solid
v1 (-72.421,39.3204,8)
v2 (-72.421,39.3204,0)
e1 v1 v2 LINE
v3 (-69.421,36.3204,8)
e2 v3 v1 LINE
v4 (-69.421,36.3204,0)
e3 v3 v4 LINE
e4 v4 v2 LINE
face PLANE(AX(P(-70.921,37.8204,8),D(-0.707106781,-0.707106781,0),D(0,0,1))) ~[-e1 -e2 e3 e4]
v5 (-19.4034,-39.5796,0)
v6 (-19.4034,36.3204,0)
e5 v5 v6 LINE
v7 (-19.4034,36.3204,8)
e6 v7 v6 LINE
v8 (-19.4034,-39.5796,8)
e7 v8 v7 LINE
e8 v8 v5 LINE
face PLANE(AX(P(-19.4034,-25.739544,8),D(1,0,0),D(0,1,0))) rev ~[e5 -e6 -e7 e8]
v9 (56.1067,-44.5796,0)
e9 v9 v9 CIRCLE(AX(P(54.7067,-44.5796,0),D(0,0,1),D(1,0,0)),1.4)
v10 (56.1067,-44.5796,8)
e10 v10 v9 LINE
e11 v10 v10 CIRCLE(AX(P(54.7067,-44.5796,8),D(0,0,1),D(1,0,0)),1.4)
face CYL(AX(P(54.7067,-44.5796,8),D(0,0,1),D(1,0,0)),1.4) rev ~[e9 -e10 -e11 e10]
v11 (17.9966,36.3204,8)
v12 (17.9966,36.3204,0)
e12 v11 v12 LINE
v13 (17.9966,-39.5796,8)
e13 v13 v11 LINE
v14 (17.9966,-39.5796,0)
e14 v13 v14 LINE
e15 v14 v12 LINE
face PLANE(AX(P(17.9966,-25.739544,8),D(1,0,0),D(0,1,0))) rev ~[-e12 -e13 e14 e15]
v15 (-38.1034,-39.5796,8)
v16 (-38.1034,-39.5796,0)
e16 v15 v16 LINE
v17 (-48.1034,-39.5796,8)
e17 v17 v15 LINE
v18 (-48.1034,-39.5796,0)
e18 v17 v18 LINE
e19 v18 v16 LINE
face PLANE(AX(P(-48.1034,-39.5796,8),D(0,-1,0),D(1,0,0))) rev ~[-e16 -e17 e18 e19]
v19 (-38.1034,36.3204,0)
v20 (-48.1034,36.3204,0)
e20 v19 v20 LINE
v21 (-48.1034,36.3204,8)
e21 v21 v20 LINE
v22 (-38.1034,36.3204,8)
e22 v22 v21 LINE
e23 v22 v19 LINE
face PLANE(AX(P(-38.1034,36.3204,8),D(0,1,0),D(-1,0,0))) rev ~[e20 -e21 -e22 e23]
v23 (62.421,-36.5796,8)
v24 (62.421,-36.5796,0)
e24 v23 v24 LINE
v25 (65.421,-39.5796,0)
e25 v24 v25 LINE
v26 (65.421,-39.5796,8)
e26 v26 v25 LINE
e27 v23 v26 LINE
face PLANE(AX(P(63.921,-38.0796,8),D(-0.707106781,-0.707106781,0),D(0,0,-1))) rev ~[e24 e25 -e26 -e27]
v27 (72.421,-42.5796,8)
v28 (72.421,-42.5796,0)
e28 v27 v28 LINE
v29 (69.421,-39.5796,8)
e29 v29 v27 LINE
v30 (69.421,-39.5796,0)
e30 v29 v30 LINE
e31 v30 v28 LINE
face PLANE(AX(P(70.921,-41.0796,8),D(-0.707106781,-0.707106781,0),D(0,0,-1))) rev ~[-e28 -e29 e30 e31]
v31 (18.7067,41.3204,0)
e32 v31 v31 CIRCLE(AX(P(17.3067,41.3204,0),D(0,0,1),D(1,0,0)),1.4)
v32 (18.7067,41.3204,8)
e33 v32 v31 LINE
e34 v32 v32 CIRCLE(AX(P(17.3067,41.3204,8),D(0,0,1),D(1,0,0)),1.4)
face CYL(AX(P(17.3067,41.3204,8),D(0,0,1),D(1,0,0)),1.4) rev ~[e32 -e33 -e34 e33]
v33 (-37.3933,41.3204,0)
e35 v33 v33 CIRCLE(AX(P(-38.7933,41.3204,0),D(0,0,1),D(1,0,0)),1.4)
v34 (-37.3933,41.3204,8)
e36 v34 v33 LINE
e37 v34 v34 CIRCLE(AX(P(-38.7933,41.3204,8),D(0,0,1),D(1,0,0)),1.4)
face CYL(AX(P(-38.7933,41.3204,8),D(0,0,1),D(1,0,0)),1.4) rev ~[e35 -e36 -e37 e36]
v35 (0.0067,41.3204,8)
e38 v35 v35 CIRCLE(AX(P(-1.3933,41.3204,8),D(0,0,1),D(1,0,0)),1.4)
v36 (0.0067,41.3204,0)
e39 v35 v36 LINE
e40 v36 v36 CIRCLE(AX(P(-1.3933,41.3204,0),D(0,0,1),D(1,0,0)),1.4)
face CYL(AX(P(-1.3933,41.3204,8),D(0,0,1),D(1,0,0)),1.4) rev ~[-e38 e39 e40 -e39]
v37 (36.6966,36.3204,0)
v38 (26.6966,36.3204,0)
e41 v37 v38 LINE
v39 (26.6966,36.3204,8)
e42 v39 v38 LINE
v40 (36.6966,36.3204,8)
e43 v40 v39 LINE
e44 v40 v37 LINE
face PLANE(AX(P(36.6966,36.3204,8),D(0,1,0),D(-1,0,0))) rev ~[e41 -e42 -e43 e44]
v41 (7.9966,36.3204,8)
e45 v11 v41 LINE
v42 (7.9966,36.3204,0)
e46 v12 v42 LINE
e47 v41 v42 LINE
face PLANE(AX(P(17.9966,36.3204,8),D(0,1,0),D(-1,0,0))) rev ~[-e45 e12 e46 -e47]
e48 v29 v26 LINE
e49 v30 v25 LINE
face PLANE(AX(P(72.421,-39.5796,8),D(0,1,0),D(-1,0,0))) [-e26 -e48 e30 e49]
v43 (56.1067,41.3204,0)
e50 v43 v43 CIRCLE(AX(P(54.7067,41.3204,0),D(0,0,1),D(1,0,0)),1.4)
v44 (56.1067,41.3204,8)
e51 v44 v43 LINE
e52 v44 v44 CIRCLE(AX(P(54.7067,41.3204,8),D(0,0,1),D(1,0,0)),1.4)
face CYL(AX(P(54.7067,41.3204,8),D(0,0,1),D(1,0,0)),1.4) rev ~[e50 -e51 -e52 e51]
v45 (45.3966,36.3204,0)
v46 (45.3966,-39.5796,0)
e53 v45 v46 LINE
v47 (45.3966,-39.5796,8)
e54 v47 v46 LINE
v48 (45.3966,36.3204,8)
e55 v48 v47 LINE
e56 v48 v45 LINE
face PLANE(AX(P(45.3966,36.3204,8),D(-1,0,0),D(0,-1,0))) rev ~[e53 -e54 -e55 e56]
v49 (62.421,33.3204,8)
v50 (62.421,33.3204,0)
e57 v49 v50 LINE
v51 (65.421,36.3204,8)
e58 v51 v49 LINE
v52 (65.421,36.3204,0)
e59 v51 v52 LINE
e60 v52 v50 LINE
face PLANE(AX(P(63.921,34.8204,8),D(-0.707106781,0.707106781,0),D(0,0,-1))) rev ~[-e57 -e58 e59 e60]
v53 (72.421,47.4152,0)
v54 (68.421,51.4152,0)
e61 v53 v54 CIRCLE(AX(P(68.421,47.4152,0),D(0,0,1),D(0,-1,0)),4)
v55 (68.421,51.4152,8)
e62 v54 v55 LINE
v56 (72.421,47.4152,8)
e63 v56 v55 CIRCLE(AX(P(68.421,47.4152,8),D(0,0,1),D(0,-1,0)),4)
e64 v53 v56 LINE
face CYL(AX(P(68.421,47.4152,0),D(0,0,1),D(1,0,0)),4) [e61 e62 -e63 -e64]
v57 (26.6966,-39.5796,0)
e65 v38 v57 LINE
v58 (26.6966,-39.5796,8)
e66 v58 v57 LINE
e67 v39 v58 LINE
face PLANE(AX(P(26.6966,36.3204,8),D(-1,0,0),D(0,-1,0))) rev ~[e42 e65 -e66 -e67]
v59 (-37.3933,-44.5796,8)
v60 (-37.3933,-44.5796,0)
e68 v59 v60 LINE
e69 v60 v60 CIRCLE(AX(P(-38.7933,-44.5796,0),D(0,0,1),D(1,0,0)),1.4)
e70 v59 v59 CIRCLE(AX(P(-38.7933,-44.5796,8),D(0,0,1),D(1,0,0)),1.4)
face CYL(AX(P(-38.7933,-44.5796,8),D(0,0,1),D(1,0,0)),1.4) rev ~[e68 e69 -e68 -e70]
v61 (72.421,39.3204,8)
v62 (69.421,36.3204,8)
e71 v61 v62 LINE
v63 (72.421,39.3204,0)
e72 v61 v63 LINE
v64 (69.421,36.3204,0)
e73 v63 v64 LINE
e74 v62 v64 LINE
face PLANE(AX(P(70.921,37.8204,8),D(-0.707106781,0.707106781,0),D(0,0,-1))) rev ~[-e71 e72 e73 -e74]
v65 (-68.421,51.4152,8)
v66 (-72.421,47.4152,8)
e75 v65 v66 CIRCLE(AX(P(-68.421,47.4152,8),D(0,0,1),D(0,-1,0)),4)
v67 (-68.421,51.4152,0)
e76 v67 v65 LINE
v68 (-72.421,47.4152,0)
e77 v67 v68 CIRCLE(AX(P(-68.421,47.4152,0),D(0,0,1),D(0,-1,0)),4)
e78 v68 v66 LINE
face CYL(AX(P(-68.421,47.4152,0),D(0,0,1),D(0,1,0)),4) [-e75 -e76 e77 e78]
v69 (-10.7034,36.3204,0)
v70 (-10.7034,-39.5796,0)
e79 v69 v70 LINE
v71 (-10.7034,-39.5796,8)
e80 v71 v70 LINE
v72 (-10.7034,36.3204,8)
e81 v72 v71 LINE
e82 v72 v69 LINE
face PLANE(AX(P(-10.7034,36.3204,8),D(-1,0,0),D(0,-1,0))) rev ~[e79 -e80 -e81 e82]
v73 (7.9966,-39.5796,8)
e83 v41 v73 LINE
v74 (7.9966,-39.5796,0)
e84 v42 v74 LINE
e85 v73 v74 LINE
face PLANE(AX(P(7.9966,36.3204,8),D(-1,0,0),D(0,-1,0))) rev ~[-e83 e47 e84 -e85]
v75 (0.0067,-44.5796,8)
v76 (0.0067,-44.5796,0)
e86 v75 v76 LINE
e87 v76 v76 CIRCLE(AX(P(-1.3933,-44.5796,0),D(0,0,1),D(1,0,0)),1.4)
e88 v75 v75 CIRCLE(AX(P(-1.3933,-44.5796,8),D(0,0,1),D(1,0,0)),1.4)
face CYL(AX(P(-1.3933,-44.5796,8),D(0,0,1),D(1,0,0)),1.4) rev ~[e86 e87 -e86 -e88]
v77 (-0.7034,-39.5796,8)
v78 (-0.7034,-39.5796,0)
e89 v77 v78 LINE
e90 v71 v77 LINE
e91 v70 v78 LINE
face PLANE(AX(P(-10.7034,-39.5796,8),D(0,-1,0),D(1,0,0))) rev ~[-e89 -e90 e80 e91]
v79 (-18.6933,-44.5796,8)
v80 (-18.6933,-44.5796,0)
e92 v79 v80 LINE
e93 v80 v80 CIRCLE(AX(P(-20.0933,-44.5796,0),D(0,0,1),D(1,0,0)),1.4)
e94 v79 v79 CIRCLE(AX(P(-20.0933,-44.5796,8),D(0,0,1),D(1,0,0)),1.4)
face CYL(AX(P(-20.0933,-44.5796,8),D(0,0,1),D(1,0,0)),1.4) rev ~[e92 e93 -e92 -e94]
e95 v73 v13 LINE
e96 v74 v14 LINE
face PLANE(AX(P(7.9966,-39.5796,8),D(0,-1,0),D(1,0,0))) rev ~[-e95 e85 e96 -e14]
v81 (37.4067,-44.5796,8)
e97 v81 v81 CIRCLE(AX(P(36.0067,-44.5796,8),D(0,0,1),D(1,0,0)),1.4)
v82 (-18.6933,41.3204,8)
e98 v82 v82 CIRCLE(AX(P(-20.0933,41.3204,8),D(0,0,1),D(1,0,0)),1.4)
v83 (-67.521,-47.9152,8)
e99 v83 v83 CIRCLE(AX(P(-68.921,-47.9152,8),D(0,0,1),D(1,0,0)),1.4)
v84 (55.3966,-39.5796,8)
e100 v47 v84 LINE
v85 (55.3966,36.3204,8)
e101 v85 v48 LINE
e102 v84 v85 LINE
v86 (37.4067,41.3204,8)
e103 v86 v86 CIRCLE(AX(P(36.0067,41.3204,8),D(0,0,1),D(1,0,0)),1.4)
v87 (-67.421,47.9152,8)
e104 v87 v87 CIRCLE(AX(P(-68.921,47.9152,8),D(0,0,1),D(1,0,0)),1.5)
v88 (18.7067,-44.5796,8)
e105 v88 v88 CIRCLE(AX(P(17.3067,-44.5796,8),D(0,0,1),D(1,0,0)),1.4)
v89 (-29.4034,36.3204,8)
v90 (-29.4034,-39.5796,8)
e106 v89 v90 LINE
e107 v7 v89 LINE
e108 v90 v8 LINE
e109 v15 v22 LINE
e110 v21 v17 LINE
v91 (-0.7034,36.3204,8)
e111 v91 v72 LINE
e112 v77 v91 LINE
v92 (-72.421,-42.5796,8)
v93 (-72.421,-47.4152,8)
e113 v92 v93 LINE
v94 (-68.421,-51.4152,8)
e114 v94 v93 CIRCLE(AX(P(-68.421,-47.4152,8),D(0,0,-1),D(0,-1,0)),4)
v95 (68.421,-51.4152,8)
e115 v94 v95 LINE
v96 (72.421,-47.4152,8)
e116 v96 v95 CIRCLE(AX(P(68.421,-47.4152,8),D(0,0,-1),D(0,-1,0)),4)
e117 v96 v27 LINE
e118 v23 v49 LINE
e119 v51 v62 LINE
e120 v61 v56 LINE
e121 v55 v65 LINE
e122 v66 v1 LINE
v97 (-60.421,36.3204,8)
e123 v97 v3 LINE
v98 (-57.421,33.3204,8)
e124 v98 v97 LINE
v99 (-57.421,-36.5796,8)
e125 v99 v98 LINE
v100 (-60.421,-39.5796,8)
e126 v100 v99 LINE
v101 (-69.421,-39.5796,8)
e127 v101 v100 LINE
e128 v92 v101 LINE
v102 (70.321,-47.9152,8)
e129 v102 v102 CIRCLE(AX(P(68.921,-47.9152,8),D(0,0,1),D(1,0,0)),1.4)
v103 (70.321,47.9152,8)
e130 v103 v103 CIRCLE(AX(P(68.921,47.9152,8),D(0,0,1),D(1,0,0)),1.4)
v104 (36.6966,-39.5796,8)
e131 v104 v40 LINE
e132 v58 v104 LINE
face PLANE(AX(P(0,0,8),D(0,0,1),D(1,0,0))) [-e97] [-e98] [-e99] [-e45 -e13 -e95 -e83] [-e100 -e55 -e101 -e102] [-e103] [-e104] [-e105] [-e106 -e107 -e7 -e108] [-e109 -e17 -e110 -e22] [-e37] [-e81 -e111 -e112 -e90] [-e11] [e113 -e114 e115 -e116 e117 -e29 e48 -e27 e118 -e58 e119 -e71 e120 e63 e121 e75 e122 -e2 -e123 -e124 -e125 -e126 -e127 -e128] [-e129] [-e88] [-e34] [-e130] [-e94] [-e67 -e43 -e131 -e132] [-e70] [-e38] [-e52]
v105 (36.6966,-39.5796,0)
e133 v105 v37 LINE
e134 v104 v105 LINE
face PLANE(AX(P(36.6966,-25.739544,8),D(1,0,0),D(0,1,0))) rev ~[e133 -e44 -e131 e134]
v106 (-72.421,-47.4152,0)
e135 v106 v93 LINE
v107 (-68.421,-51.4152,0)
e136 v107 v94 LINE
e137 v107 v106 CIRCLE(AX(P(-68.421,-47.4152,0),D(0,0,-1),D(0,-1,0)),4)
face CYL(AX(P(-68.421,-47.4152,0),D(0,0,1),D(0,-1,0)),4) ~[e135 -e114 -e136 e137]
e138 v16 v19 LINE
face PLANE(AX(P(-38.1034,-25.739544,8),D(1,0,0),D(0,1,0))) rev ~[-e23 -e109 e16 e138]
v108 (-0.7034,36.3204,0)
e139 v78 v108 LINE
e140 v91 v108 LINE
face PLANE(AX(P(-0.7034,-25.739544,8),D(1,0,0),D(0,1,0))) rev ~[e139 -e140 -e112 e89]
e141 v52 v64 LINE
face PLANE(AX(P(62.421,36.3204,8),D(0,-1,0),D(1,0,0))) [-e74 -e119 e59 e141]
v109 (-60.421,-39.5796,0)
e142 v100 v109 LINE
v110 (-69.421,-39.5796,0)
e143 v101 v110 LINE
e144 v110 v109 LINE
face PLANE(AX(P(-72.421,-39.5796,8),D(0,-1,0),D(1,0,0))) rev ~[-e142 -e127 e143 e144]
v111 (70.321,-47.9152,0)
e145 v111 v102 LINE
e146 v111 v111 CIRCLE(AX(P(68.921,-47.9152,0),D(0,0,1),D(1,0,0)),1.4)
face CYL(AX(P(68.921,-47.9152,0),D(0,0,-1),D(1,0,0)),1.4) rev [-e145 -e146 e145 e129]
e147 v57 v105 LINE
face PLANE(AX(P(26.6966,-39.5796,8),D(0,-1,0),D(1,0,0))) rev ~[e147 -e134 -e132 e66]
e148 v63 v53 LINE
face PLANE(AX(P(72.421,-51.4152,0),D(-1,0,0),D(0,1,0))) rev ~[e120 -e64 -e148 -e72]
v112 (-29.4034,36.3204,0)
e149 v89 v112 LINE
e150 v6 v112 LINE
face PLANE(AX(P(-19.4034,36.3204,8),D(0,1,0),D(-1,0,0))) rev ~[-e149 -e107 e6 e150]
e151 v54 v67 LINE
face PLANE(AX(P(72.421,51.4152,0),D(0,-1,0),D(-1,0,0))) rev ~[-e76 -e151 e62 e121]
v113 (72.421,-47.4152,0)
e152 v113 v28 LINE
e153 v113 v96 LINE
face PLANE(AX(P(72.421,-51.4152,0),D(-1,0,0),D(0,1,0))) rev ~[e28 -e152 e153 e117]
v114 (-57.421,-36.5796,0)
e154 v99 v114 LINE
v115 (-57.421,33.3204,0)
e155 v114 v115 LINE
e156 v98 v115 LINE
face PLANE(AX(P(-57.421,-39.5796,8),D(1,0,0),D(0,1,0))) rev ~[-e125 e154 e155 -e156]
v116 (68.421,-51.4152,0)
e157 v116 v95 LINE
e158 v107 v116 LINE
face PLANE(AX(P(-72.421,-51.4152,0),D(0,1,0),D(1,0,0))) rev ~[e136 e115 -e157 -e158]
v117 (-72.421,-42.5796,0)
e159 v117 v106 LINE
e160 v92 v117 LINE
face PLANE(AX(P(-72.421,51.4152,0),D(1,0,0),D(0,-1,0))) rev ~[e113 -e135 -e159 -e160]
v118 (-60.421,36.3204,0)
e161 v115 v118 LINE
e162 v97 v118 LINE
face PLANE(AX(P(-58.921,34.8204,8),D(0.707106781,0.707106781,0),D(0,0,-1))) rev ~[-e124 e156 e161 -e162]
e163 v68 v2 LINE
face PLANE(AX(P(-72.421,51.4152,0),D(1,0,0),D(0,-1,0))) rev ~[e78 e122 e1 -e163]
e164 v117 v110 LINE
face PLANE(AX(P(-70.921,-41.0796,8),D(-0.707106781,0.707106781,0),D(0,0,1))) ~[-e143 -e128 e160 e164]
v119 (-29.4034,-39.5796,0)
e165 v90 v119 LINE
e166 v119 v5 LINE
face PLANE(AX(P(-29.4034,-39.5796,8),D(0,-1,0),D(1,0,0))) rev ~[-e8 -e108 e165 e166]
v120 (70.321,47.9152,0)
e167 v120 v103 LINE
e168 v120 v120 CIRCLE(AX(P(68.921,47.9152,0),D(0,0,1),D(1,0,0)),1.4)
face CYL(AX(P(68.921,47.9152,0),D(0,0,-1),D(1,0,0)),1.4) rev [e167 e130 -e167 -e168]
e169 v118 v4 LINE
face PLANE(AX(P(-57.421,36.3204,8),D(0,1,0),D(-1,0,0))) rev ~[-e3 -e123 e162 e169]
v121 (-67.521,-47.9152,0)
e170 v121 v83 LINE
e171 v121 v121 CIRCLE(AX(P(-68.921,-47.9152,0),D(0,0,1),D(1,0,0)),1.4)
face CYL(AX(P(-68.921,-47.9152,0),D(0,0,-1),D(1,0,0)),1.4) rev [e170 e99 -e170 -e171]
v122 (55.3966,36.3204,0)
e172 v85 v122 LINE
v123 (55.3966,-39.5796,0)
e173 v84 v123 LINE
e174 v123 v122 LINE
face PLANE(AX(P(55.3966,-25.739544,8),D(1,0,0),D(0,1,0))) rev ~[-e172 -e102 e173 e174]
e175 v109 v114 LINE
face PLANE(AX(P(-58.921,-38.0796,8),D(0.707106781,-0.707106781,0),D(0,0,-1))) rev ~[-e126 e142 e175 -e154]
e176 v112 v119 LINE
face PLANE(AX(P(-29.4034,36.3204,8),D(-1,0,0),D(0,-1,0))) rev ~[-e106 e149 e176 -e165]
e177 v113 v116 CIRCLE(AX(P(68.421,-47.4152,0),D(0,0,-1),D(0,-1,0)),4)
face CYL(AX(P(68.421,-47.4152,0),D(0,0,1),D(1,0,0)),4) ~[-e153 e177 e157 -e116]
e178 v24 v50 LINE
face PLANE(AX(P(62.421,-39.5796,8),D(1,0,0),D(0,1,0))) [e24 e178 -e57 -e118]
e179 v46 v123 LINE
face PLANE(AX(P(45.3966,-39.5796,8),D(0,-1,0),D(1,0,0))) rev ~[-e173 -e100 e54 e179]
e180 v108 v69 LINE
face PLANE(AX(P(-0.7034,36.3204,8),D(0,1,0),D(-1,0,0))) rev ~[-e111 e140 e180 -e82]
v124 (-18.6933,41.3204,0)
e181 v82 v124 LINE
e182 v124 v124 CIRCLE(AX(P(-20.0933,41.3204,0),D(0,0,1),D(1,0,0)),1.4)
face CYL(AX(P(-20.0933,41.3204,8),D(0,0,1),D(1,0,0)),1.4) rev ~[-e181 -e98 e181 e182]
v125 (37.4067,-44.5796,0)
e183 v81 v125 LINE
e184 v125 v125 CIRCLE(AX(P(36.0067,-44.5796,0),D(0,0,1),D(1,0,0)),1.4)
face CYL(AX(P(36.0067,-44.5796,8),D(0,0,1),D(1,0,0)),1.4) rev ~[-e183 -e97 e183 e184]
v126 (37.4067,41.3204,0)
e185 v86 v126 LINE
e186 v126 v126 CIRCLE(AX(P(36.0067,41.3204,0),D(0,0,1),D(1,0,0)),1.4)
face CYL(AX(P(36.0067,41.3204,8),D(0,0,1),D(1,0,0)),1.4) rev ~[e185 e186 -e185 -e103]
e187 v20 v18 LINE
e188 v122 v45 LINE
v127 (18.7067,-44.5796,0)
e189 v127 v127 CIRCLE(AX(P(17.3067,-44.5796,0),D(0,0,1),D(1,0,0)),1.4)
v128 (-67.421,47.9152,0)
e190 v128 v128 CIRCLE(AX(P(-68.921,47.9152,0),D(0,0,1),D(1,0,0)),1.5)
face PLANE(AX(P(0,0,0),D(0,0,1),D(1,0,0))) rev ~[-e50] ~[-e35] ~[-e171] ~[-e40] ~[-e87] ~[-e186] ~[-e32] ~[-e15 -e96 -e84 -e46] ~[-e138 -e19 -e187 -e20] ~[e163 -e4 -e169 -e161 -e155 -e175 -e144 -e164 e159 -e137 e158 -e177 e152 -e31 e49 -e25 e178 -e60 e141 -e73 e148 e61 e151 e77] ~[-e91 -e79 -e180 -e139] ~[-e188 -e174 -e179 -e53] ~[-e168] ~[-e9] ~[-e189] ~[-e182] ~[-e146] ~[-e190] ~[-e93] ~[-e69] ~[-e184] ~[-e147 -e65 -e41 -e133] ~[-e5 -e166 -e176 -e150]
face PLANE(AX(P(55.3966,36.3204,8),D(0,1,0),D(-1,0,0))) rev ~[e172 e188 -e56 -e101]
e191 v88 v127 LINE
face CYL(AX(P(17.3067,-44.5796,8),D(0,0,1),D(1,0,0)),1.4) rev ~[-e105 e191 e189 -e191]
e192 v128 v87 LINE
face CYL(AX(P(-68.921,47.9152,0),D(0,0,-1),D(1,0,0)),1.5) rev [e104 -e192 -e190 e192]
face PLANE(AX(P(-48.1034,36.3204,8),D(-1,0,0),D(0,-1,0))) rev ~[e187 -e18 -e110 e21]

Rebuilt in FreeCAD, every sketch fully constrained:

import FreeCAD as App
import Part
import Sketcher

V = App.Vector


def edges_at(feature, points):
    """Names of the edges that pass closest to the given points."""
    edges = feature.Shape.Edges
    near = lambda p: min(range(len(edges)), key=lambda i: edges[i].distToShape(Part.Vertex(*p))[0])
    return sorted({f"Edge{near(p) + 1}" for p in points})

doc = App.newDocument("Part")
params = doc.addObject("Spreadsheet::Sheet", "Params")
for row, (alias, value) in enumerate([
    ("sketch1_diameter", "3 mm"),
    ("sketch1_diameter2", "2.8 mm"),
    ("pad1_length", "8 mm"),
    ("sketch2_diameter", "2.8 mm"),
    ("sketch2_width", "10 mm"),
    ("sketch2_height", "75.9 mm"),
    ("linearpattern_pitch", "18.7 mm"),
    ("fillet_radius", "4 mm"),
    ("sketch3_width", "15 mm"),
    ("sketch3_width2", "10 mm"),
    ("sketch3_height", "75.9 mm"),
    ("chamfer_size", "3 mm"),
], start=1):
    params.set(f"A{row}", alias)
    params.set(f"B{row}", "=" + value)
    params.setAlias(f"B{row}", alias)

body = doc.addObject("PartDesign::Body", "Body")

# Sketch on XY plane
sketch1 = body.newObject("Sketcher::SketchObject", "Sketch")
sketch1.AttachmentSupport = (doc.getObject("XY_Plane"), [""])
sketch1.MapMode = "FlatFace"
sketch1.addGeometry([
    Part.LineSegment(V(72.4, -51.4, 0), V(72.4, 51.4, 0)),  # 0
    Part.LineSegment(V(72.4, 51.4, 0), V(-72.4, 51.4, 0)),  # 1
    Part.LineSegment(V(-72.4, 51.4, 0), V(-72.4, -51.4, 0)),  # 2
    Part.LineSegment(V(-72.4, -51.4, 0), V(72.4, -51.4, 0)),  # 3
    Part.Circle(V(68.9, 47.9, 0), V(0, 0, 1), 1.4),  # 4
    Part.Circle(V(68.9, -47.9, 0), V(0, 0, 1), 1.4),  # 5
    Part.Circle(V(-68.9, -47.9, 0), V(0, 0, 1), 1.4),  # 6
    Part.Circle(V(-68.9, 47.9, 0), V(0, 0, 1), 1.5),  # 7
], False)
sketch1.addConstraint([
    Sketcher.Constraint("Coincident", 0, 2, 1, 1),
    Sketcher.Constraint("Coincident", 1, 2, 2, 1),
    Sketcher.Constraint("Coincident", 2, 2, 3, 1),
    Sketcher.Constraint("Coincident", 3, 2, 0, 1),
    Sketcher.Constraint("Vertical", 0),
    Sketcher.Constraint("Horizontal", 1),
    Sketcher.Constraint("Vertical", 2),
    Sketcher.Constraint("Horizontal", 3),
    Sketcher.Constraint("Equal", 4, 5),
    Sketcher.Constraint("Equal", 5, 6),
    Sketcher.Constraint("Symmetric", 4, 3, 6, 3, -1, 1),
    Sketcher.Constraint("Symmetric", 5, 3, 7, 3, -1, 1),
    Sketcher.Constraint("Symmetric", 0, 2, 2, 2, -1, 1),
    Sketcher.Constraint("Symmetric", 5, 3, 6, 3, -2),
    Sketcher.Constraint("Diameter", 7, 3.0),
    Sketcher.Constraint("Diameter", 4, 2.8),
    Sketcher.Constraint("DistanceX", 4, 3, 0, 2, 3.5),
    Sketcher.Constraint("DistanceY", 4, 3, 0, 2, 3.5),
    Sketcher.Constraint("DistanceX", 1, 2, 1, 1, 144.842),
    Sketcher.Constraint("DistanceY", 0, 1, 0, 2, 102.8304),
])
sketch1.setExpression("Constraints[14]", "Params.sketch1_diameter")
sketch1.setExpression("Constraints[15]", "Params.sketch1_diameter2")
pad1 = body.newObject("PartDesign::Pad", "Pad")
pad1.Profile = sketch1
pad1.setExpression("Length", "Params.pad1_length")

# Sketch on XY plane
sketch2 = body.newObject("Sketcher::SketchObject", "Sketch001")
sketch2.AttachmentSupport = (doc.getObject("XY_Plane"), [""])
sketch2.MapMode = "FlatFace"
sketch2.AttachmentOffset = App.Placement(V(0, 0, 8), App.Rotation())
sketch2.addGeometry([
    Part.LineSegment(V(-48.1, 36.3, 0), V(-48.1, -39.6, 0)),  # 0
    Part.LineSegment(V(-48.1, -39.6, 0), V(-38.1, -39.6, 0)),  # 1
    Part.LineSegment(V(-38.1, -39.6, 0), V(-38.1, 36.3, 0)),  # 2
    Part.LineSegment(V(-38.1, 36.3, 0), V(-48.1, 36.3, 0)),  # 3
    Part.Circle(V(-38.8, -44.6, 0), V(0, 0, 1), 1.4),  # 4
    Part.Circle(V(-38.8, 41.3, 0), V(0, 0, 1), 1.4),  # 5
], False)
sketch2.addConstraint([
    Sketcher.Constraint("Coincident", 0, 2, 1, 1),
    Sketcher.Constraint("Coincident", 1, 2, 2, 1),
    Sketcher.Constraint("Coincident", 2, 2, 3, 1),
    Sketcher.Constraint("Coincident", 3, 2, 0, 1),
    Sketcher.Constraint("Vertical", 0),
    Sketcher.Constraint("Horizontal", 1),
    Sketcher.Constraint("Vertical", 2),
    Sketcher.Constraint("Horizontal", 3),
    Sketcher.Constraint("Equal", 4, 5),
    Sketcher.Constraint("Vertical", 4, 3, 5, 3),
    Sketcher.Constraint("Diameter", 4, 2.8),
    Sketcher.Constraint("DistanceY", 4, 3, 0, 2, 5.0),
    Sketcher.Constraint("DistanceY", 2, 2, 5, 3, 5.0),
    Sketcher.Constraint("DistanceX", 1, 1, 1, 2, 10.0),
    Sketcher.Constraint("DistanceY", 0, 2, 0, 1, 75.9),
    Sketcher.Constraint("DistanceX", 0, 2, 4, 3, 9.31),
    Sketcher.Constraint("DistanceX", 4, 3, -1, 1, 38.7933),
    Sketcher.Constraint("DistanceY", 4, 3, -1, 1, 44.5796),
])
sketch2.setExpression("Constraints[10]", "Params.sketch2_diameter")
sketch2.setExpression("Constraints[13]", "Params.sketch2_width")
sketch2.setExpression("Constraints[14]", "Params.sketch2_height")
pocket1 = body.newObject("PartDesign::Pocket", "Pocket")
pocket1.Profile = sketch2
pocket1.Type = "ThroughAll"
doc.recompute()

linearpattern = body.newObject("PartDesign::LinearPattern", "LinearPattern")
linearpattern.Originals = [pocket1]
linearpattern.Direction = (doc.getObject("X_Axis"), [""])
linearpattern.Mode = "offset"
linearpattern.setExpression("Offset", "Params.linearpattern_pitch")
linearpattern.Occurrences = 6
body.Tip = linearpattern
doc.recompute()

fillet = body.newObject("PartDesign::Fillet", "Fillet")
fillet.Base = (linearpattern, edges_at(linearpattern, [
    (72.421, 51.415, 4),
    (72.421, -51.415, 4),
    (-72.421, -51.415, 4),
    (-72.421, 51.415, 4),
]))
fillet.setExpression("Radius", "Params.fillet_radius")

# Sketch on XY plane
sketch3 = body.newObject("Sketcher::SketchObject", "Sketch002")
sketch3.AttachmentSupport = (doc.getObject("XY_Plane"), [""])
sketch3.MapMode = "FlatFace"
sketch3.AttachmentOffset = App.Placement(V(0, 0, 8), App.Rotation())
sketch3.addGeometry([
    Part.LineSegment(V(-57, 36, 0), V(-72, 36, 0)),  # 0
    Part.LineSegment(V(-72, 36, 0), V(-72, -40, 0)),  # 1
    Part.LineSegment(V(-72, -40, 0), V(-57, -40, 0)),  # 2
    Part.LineSegment(V(-57, -40, 0), V(-57, 36, 0)),  # 3
    Part.LineSegment(V(72, -40, 0), V(72, 36, 0)),  # 4
    Part.LineSegment(V(72, 36, 0), V(62, 36, 0)),  # 5
    Part.LineSegment(V(62, 36, 0), V(62, -40, 0)),  # 6
    Part.LineSegment(V(62, -40, 0), V(72, -40, 0)),  # 7
], False)
sketch3.addConstraint([
    Sketcher.Constraint("Coincident", 0, 2, 1, 1),
    Sketcher.Constraint("Coincident", 1, 2, 2, 1),
    Sketcher.Constraint("Coincident", 2, 2, 3, 1),
    Sketcher.Constraint("Coincident", 3, 2, 0, 1),
    Sketcher.Constraint("Coincident", 4, 2, 5, 1),
    Sketcher.Constraint("Coincident", 5, 2, 6, 1),
    Sketcher.Constraint("Coincident", 6, 2, 7, 1),
    Sketcher.Constraint("Coincident", 7, 2, 4, 1),
    Sketcher.Constraint("Horizontal", 0),
    Sketcher.Constraint("Vertical", 1),
    Sketcher.Constraint("Horizontal", 2),
    Sketcher.Constraint("Vertical", 3),
    Sketcher.Constraint("Vertical", 4),
    Sketcher.Constraint("Horizontal", 5),
    Sketcher.Constraint("Vertical", 6),
    Sketcher.Constraint("Horizontal", 7),
    Sketcher.Constraint("Symmetric", 0, 2, 4, 2, -2),
    Sketcher.Constraint("Horizontal", 2, 2, 6, 2),
    Sketcher.Constraint("DistanceX", 0, 2, 0, 1, 15.0),
    Sketcher.Constraint("DistanceX", 5, 2, 5, 1, 10.0),
    Sketcher.Constraint("DistanceY", 1, 2, 1, 1, 75.9),
    Sketcher.Constraint("DistanceX", 0, 2, -1, 1, 72.421),
    Sketcher.Constraint("DistanceY", -1, 1, 0, 2, 36.3204),
])
sketch3.setExpression("Constraints[18]", "Params.sketch3_width")
sketch3.setExpression("Constraints[19]", "Params.sketch3_width2")
sketch3.setExpression("Constraints[20]", "Params.sketch3_height")
pocket2 = body.newObject("PartDesign::Pocket", "Pocket001")
pocket2.Profile = sketch3
pocket2.Type = "ThroughAll"
doc.recompute()

chamfer = body.newObject("PartDesign::Chamfer", "Chamfer")
chamfer.Base = (pocket2, edges_at(pocket2, [
    (72.421, -39.58, 4),
    (62.421, -39.58, 4),
    (62.421, 36.32, 4),
    (72.421, 36.32, 4),
    (-72.421, -39.58, 4),
    (-57.421, -39.58, 4),
    (-72.421, 36.32, 4),
    (-57.421, 36.32, 4),
]))
chamfer.setExpression("Size", "Params.chamfer_size")

doc.recompute()
